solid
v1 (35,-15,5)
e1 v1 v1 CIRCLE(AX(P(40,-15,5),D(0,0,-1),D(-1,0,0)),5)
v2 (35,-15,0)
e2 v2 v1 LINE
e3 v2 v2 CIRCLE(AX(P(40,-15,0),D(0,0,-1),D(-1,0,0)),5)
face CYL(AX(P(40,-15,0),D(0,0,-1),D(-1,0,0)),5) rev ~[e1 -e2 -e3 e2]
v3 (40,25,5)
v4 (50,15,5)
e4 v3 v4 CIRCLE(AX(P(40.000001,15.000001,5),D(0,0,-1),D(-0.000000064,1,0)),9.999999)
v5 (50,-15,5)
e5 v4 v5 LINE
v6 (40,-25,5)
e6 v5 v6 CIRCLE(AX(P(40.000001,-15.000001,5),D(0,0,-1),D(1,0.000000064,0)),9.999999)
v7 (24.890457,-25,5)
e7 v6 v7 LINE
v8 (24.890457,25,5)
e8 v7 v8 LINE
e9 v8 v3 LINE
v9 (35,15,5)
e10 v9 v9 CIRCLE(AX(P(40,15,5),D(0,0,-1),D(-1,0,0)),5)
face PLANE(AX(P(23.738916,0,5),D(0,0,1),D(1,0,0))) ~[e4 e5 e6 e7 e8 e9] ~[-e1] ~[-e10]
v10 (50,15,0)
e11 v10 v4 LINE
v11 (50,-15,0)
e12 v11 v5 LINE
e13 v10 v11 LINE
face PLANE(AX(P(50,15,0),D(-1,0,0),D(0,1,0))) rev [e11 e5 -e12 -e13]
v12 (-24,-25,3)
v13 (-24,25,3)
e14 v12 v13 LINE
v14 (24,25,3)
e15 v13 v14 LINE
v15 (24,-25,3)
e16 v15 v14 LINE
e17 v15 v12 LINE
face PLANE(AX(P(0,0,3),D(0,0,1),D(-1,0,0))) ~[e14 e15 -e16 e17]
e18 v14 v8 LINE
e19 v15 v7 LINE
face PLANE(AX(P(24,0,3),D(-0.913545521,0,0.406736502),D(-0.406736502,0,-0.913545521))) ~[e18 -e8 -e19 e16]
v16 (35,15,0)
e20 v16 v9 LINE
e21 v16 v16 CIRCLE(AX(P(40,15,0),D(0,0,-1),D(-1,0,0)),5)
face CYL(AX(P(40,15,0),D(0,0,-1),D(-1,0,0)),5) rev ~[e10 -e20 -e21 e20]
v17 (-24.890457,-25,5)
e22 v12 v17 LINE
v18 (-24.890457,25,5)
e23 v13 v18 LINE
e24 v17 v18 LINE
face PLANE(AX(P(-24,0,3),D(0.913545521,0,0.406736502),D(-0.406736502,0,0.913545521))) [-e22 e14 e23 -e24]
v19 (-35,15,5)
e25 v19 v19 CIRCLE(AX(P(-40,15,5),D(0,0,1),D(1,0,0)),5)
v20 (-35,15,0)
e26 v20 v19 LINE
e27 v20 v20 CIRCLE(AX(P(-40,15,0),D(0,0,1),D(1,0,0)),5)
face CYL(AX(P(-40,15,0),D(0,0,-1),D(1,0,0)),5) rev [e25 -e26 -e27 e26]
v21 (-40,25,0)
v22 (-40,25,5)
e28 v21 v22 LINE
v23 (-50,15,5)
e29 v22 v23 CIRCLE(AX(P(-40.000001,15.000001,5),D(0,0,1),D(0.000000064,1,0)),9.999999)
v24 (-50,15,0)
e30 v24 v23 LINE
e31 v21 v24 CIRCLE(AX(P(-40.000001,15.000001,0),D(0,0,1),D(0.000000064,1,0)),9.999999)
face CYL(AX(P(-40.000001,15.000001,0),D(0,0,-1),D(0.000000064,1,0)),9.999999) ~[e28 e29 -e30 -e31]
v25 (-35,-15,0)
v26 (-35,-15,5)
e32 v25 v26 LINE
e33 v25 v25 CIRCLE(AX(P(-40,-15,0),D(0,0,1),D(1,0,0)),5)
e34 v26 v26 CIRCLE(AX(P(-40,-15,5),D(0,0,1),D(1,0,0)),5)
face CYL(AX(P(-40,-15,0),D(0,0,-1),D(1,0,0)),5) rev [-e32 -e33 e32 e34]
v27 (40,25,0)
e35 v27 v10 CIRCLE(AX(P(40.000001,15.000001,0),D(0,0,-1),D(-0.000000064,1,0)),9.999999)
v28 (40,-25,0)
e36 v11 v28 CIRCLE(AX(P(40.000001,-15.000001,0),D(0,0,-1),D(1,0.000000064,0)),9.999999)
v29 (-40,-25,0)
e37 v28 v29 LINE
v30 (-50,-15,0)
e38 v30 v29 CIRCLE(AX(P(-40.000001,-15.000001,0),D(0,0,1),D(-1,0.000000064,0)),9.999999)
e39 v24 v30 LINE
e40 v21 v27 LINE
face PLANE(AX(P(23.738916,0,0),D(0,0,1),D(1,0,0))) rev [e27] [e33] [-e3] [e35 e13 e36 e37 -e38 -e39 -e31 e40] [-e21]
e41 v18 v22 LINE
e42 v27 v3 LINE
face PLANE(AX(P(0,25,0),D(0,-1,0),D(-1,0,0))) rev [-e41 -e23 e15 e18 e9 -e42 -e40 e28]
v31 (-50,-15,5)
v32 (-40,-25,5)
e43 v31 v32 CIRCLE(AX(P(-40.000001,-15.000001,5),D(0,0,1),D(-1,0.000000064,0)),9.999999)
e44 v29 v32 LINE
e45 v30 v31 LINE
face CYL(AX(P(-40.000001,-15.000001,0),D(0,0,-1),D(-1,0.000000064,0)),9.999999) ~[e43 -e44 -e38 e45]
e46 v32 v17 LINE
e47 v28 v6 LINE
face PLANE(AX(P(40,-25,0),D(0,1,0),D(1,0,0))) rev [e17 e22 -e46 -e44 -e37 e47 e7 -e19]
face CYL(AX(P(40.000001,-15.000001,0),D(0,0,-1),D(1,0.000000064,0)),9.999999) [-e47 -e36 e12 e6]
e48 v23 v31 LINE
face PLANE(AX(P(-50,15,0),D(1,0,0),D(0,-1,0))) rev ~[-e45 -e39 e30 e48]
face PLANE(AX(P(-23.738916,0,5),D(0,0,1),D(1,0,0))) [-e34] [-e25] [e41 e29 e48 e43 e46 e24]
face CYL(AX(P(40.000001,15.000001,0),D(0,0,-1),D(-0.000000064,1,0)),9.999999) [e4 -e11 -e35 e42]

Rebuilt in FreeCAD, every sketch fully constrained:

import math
import FreeCAD as App
import Part
import Sketcher
from FreeCAD import Vector
Q = App.Units.Quantity

doc = App.newDocument("Part")
body = doc.addObject("PartDesign::Body", "Body")

# Sketch on XY plane
sketch1 = body.newObject("Sketcher::SketchObject", "Sketch")
sketch1.AttachmentSupport = (doc.getObject("XY_Plane"), [""])
sketch1.MapMode = "FlatFace"
sketch1.addGeometry(Part.LineSegment(Vector(-50, 15, 0), Vector(-50, -15, 0)), False)
sketch1.addGeometry(Part.ArcOfCircle(Part.Circle(Vector(-40, -15, 0), Vector(0, 0, 1), 10), math.radians(180), math.radians(270)), False)
sketch1.addGeometry(Part.LineSegment(Vector(-40, -25, 0), Vector(0, -25, 0)), False)
sketch1.addGeometry(Part.LineSegment(Vector(0, -25, 0), Vector(0, 25, 0)), False)
sketch1.addGeometry(Part.LineSegment(Vector(0, 25, 0), Vector(-40, 25, 0)), False)
sketch1.addGeometry(Part.ArcOfCircle(Part.Circle(Vector(-40, 15, 0), Vector(0, 0, 1), 10), math.radians(90), math.radians(180)), False)
sketch1.addGeometry(Part.Circle(Vector(-40, -15, 0), Vector(0, 0, 1), 5), False)
sketch1.addGeometry(Part.Circle(Vector(-40, 15, 0), Vector(0, 0, 1), 5), False)
sketch1.addConstraint(Sketcher.Constraint("Tangent", 0, 2, 1, 1))
sketch1.addConstraint(Sketcher.Constraint("Tangent", 1, 2, 2, 1))
sketch1.addConstraint(Sketcher.Constraint("Coincident", 2, 2, 3, 1))
sketch1.addConstraint(Sketcher.Constraint("Coincident", 3, 2, 4, 1))
sketch1.addConstraint(Sketcher.Constraint("Tangent", 4, 2, 5, 1))
sketch1.addConstraint(Sketcher.Constraint("Tangent", 5, 2, 0, 1))
sketch1.addConstraint(Sketcher.Constraint("Vertical", 0))
sketch1.addConstraint(Sketcher.Constraint("Horizontal", 2))
sketch1.addConstraint(Sketcher.Constraint("Vertical", 3))
sketch1.addConstraint(Sketcher.Constraint("Horizontal", 4))
sketch1.addConstraint(Sketcher.Constraint("Coincident", 6, 3, 1, 3))
sketch1.addConstraint(Sketcher.Constraint("Coincident", 7, 3, 5, 3))
sketch1.addConstraint(Sketcher.Constraint("Equal", 1, 5))
sketch1.addConstraint(Sketcher.Constraint("Equal", 6, 7))
sketch1.addConstraint(Sketcher.Constraint("Symmetric", 2, 2, 3, 2, -1, 1))
sketch1.addConstraint(Sketcher.Constraint("Diameter", 6, 10.0))
sketch1.addConstraint(Sketcher.Constraint("Radius", 1, 9.999999))
sketch1.addConstraint(Sketcher.Constraint("DistanceX", 2, 1, 2, 2, 40.0))
sketch1.addConstraint(Sketcher.Constraint("DistanceY", 0, 2, 0, 1, 30.0))
pad1 = body.newObject("PartDesign::Pad", "Pad")
pad1.Profile = sketch1
pad1.Length = 5

# Sketch on XZ plane
sketch2 = body.newObject("Sketcher::SketchObject", "Sketch001")
sketch2.AttachmentSupport = (doc.getObject("XZ_Plane"), [""])
sketch2.MapMode = "FlatFace"
sketch2.addGeometry(Part.LineSegment(Vector(-24, 3, 0), Vector(0, 3, 0)), False)
sketch2.addGeometry(Part.LineSegment(Vector(0, 3, 0), Vector(0, 5, 0)), False)
sketch2.addGeometry(Part.LineSegment(Vector(0, 5, 0), Vector(-24.9, 5, 0)), False)
sketch2.addGeometry(Part.LineSegment(Vector(-24.9, 5, 0), Vector(-24, 3, 0)), False)
sketch2.addConstraint(Sketcher.Constraint("Coincident", 0, 2, 1, 1))
sketch2.addConstraint(Sketcher.Constraint("Coincident", 1, 2, 2, 1))
sketch2.addConstraint(Sketcher.Constraint("Coincident", 2, 2, 3, 1))
sketch2.addConstraint(Sketcher.Constraint("Coincident", 3, 2, 0, 1))
sketch2.addConstraint(Sketcher.Constraint("Horizontal", 0))
sketch2.addConstraint(Sketcher.Constraint("Vertical", 1))
sketch2.addConstraint(Sketcher.Constraint("Horizontal", 2))
sketch2.addConstraint(Sketcher.Constraint("PointOnObject", 0, 2, -2))
sketch2.addConstraint(Sketcher.Constraint("DistanceX", 0, 1, 0, 2, 24.0))
sketch2.addConstraint(Sketcher.Constraint("DistanceY", 1, 1, 1, 2, 2.0))
sketch2.addConstraint(Sketcher.Constraint("Angle", 3, Q("-66.000009 deg")))
sketch2.addConstraint(Sketcher.Constraint("DistanceY", -1, 1, 0, 2, 3.0))
pocket1 = body.newObject("PartDesign::Pocket", "Pocket")
pocket1.Profile = sketch2
pocket1.Type = "ThroughAll"
pocket1.Midplane = True
body2 = doc.addObject("PartDesign::Body", "Body001")
doc.recompute()

body2.BaseFeature = body
doc.recompute()

mirroring = doc.addObject("Part::Mirroring", "Mirroring")
mirroring.Source = body
mirroring.Base = Vector(0, 0, 0)
mirroring.Normal = Vector(1, 0, 0)
body3 = doc.addObject("PartDesign::Body", "Body002")
body3.BaseFeature = mirroring
boolean = body2.newObject("PartDesign::Boolean", "Boolean")
boolean.Type = "Fuse"
boolean.addObjects([body3])
doc.recompute()
mirroring.Visibility = False

doc.recompute()
